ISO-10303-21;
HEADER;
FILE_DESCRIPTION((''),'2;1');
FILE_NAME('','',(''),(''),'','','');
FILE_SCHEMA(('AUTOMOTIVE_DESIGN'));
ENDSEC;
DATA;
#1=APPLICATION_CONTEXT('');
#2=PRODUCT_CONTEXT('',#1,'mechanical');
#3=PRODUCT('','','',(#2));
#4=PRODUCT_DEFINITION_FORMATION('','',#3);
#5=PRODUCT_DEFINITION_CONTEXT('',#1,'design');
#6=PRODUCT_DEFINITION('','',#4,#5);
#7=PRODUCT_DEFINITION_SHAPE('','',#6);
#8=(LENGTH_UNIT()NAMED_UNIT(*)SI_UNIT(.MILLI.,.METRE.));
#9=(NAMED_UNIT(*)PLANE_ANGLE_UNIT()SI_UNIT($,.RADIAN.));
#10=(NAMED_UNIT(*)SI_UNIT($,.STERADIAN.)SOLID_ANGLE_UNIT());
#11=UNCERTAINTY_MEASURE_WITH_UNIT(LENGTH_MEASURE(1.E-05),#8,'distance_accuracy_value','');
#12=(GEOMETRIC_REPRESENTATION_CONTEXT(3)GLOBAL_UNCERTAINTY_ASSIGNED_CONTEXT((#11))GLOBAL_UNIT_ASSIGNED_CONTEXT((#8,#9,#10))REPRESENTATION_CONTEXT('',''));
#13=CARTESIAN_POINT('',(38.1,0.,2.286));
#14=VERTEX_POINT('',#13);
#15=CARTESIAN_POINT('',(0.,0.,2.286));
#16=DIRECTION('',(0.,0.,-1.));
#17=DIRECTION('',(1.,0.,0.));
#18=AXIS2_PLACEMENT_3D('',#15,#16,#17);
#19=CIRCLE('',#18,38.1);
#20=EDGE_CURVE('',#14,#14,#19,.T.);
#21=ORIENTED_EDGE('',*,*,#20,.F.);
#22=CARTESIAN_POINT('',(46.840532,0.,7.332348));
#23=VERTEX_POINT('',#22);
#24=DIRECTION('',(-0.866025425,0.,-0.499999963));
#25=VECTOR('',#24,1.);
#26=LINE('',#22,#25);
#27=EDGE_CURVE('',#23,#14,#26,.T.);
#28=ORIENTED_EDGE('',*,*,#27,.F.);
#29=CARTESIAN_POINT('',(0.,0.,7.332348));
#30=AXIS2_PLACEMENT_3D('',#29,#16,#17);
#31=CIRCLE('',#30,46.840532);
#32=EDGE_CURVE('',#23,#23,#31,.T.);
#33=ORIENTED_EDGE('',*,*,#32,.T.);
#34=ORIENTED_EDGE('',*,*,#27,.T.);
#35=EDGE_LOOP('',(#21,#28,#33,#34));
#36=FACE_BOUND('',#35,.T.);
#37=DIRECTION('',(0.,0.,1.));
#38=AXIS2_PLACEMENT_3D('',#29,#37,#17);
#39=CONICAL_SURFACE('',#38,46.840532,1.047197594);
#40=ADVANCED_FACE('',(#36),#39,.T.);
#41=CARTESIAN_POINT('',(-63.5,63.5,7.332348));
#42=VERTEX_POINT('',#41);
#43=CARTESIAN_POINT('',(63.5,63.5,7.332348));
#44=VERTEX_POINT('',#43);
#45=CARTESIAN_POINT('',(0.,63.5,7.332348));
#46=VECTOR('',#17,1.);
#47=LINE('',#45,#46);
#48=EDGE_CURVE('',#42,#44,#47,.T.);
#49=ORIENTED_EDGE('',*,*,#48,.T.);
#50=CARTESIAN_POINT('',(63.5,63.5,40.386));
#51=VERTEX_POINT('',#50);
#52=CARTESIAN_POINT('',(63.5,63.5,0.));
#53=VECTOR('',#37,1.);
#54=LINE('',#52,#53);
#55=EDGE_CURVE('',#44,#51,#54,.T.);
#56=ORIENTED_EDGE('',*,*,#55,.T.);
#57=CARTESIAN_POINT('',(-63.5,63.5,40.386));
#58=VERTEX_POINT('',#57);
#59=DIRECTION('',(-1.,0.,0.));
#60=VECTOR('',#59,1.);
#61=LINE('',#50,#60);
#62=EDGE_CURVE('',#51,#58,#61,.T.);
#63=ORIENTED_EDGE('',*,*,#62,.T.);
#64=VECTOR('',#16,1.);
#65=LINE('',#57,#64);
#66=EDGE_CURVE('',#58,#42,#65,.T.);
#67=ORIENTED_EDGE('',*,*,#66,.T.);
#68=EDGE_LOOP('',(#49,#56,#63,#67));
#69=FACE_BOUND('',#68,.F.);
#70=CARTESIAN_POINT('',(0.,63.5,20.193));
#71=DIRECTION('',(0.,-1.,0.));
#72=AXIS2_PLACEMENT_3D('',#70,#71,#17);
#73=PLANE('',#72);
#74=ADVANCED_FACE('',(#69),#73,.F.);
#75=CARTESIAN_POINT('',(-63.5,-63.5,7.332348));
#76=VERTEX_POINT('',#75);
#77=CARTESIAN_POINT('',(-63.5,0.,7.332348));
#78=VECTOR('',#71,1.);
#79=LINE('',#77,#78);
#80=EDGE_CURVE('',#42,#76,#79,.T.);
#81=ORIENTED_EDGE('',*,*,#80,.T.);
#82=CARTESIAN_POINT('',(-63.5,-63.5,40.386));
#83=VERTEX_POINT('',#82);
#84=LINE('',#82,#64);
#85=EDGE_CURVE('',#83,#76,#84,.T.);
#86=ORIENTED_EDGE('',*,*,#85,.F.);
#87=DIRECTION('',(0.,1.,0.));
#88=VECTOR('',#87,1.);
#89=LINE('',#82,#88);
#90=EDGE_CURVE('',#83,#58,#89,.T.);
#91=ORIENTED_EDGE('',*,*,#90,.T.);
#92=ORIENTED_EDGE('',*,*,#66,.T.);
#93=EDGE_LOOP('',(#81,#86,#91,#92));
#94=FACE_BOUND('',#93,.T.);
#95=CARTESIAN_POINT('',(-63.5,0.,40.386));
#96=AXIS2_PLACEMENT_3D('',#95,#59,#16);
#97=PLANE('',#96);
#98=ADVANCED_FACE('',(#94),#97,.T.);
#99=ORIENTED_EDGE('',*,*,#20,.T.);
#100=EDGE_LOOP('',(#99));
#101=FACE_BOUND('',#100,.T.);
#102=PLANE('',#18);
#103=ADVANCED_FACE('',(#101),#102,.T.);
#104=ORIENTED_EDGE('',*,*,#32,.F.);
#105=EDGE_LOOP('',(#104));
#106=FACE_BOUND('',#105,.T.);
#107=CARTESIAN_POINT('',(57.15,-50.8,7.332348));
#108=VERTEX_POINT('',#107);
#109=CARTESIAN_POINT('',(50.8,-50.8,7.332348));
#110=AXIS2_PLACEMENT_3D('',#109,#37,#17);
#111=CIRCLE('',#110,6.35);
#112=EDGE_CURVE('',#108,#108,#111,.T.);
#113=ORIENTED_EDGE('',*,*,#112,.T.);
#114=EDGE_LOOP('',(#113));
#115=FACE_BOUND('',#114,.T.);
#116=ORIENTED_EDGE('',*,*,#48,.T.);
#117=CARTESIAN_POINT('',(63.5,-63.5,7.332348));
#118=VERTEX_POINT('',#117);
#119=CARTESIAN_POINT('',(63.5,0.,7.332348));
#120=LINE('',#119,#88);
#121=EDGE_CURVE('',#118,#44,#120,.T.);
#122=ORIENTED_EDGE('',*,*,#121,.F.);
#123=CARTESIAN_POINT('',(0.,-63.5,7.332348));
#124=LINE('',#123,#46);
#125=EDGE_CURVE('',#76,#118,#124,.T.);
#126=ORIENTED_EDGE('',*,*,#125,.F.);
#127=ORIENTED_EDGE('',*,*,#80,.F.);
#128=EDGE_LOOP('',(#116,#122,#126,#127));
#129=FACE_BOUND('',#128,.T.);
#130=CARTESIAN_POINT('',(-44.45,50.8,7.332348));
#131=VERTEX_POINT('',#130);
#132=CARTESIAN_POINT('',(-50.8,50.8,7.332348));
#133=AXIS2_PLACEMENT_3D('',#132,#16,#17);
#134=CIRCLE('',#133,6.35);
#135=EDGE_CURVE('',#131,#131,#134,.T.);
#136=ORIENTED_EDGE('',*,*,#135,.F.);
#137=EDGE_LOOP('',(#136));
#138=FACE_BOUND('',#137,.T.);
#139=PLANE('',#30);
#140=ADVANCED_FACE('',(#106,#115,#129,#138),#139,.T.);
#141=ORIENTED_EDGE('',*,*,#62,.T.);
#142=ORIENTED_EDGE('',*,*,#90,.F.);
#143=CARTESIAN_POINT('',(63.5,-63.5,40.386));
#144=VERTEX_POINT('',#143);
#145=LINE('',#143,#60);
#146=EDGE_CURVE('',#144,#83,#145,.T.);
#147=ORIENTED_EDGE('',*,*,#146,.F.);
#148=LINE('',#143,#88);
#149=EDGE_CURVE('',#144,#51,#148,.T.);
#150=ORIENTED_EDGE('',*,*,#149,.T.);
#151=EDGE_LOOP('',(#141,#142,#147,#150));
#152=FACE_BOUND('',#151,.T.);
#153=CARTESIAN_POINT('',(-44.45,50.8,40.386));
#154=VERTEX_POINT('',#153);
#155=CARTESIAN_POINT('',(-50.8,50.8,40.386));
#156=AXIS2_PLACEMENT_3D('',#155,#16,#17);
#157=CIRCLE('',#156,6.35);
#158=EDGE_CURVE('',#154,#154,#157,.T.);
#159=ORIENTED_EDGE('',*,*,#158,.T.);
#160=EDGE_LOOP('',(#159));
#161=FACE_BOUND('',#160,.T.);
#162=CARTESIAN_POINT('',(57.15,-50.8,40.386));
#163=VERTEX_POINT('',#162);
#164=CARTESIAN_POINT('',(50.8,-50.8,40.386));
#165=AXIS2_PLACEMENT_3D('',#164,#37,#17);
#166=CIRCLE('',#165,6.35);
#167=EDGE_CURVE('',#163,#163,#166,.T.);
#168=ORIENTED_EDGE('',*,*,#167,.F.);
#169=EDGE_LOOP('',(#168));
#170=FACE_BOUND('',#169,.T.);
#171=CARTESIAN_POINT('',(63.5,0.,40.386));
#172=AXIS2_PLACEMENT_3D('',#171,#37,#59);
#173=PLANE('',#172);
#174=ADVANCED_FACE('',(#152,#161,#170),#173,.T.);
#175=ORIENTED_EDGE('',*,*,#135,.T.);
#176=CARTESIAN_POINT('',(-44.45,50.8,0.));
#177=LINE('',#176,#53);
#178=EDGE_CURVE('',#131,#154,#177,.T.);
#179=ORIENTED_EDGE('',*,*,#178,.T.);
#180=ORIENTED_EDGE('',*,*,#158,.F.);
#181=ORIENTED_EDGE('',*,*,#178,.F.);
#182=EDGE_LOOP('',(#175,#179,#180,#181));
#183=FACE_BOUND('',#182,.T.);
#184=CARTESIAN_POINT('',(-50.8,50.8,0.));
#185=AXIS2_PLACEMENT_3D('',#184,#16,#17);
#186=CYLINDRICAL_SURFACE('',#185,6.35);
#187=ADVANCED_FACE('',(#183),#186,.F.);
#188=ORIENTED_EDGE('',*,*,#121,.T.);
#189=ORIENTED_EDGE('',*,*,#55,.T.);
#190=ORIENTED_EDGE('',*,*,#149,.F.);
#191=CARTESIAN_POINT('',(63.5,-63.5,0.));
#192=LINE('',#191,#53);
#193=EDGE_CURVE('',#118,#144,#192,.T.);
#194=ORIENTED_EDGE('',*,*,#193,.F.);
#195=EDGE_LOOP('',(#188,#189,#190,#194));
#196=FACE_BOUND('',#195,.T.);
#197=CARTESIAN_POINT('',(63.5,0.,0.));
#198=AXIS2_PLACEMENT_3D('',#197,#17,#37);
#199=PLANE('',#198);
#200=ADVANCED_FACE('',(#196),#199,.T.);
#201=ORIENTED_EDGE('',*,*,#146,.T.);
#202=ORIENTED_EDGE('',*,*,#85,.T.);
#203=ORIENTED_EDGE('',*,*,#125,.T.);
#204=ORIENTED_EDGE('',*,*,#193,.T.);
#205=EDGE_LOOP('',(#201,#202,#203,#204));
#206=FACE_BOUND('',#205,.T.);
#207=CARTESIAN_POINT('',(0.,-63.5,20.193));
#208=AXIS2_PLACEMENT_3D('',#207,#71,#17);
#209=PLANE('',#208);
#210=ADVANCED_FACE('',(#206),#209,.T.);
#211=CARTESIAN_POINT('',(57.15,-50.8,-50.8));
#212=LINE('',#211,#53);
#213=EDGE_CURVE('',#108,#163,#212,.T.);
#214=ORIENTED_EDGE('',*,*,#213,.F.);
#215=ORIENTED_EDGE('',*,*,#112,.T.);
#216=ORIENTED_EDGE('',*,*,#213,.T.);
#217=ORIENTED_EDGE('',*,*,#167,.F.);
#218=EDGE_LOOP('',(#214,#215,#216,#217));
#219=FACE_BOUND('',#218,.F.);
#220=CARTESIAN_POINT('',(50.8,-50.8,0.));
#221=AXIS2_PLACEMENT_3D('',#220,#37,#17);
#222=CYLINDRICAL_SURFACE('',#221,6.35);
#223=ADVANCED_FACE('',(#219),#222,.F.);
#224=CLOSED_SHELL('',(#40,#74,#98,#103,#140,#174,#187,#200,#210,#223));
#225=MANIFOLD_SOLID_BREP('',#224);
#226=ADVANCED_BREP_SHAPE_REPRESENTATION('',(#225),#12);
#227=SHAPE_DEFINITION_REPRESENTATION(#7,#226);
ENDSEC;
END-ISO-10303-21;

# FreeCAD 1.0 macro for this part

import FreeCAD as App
import Part
import Sketcher

V = App.Vector
Q = App.Units.Quantity

doc = App.newDocument("Part")
body = doc.addObject("PartDesign::Body", "Body")

# Sketch on XZ plane
sketch1 = body.newObject("Sketcher::SketchObject", "Sketch")
sketch1.AttachmentSupport = (doc.getObject("XZ_Plane"), [""])
sketch1.MapMode = "FlatFace"
sketch1.addGeometry([
    Part.LineSegment(V(-64, 40, 0), V(-64, 0, 0)),
    Part.LineSegment(V(-64, 0, 0), V(64, 0, 0)),
    Part.LineSegment(V(64, 0, 0), V(64, 40, 0)),
    Part.LineSegment(V(64, 40, 0), V(-64, 40, 0)),
], False)
sketch1.addConstraint([
    Sketcher.Constraint("Coincident", 0, 2, 1, 1),
    Sketcher.Constraint("Coincident", 1, 2, 2, 1),
    Sketcher.Constraint("Coincident", 2, 2, 3, 1),
    Sketcher.Constraint("Coincident", 3, 2, 0, 1),
    Sketcher.Constraint("Vertical", 0),
    Sketcher.Constraint("Horizontal", 1),
    Sketcher.Constraint("Vertical", 2),
    Sketcher.Constraint("Horizontal", 3),
    Sketcher.Constraint("Symmetric", 0, 2, 1, 2, -1, 1),
    Sketcher.Constraint("DistanceX", 1, 1, 1, 2, Q("5 in")),
    Sketcher.Constraint("DistanceY", 0, 2, 0, 1, Q("1.59 in")),
])
pad1 = body.newObject("PartDesign::Pad", "Pad")
pad1.Profile = sketch1
pad1.Length = Q("5 in")
pad1.Midplane = True

# Sketch on XZ plane
sketch2 = body.newObject("Sketcher::SketchObject", "Sketch001")
sketch2.AttachmentSupport = (doc.getObject("XZ_Plane"), [""])
sketch2.MapMode = "FlatFace"
sketch2.addGeometry([
    Part.LineSegment(V(0, 2.3, 0), V(0, 0, 0)),  # 0
    Part.LineSegment(V(0, 0, 0), V(91.4, 0, 0)),  # 1
    Part.LineSegment(V(91.4, 0, 0), V(91.4, 7.3, 0)),  # 2
    Part.LineSegment(V(91.4, 7.3, 0), V(46.8, 7.3, 0)),  # 3
    Part.LineSegment(V(46.8, 7.3, 0), V(38.1, 2.3, 0)),  # 4
    Part.LineSegment(V(38.1, 2.3, 0), V(0, 2.3, 0)),  # 5
], False)
sketch2.addConstraint([
    Sketcher.Constraint("Coincident", 0, 2, 1, 1),
    Sketcher.Constraint("Coincident", 1, 2, 2, 1),
    Sketcher.Constraint("Coincident", 2, 2, 3, 1),
    Sketcher.Constraint("Coincident", 3, 2, 4, 1),
    Sketcher.Constraint("Coincident", 4, 2, 5, 1),
    Sketcher.Constraint("Coincident", 5, 2, 0, 1),
    Sketcher.Constraint("Vertical", 0),
    Sketcher.Constraint("Horizontal", 1),
    Sketcher.Constraint("Vertical", 2),
    Sketcher.Constraint("Horizontal", 3),
    Sketcher.Constraint("Horizontal", 5),
    Sketcher.Constraint("Coincident", 0, 2, -1, 1),
    Sketcher.Constraint("DistanceX", 5, 2, 5, 1, Q("1.5 in")),
    Sketcher.Constraint("Angle", 4, Q("-150.000002 deg")),
    Sketcher.Constraint("DistanceY", 0, 2, 0, 1, Q("0.09 in")),
    Sketcher.Constraint("DistanceX", 1, 1, 1, 2, 91.416501),
    Sketcher.Constraint("DistanceX", 3, 2, 3, 1, 44.575969),
])
groove = body.newObject("PartDesign::Groove", "Groove")
groove.Profile = sketch2
groove.ReferenceAxis = (sketch2, ["V_Axis"])
groove.Angle = 360

# Sketch on XY plane
sketch3 = body.newObject("Sketcher::SketchObject", "Sketch002")
sketch3.AttachmentSupport = (doc.getObject("XY_Plane"), [""])
sketch3.MapMode = "FlatFace"
sketch3.addGeometry([
    Part.Circle(V(-51, 51, 0), V(0, 0, 1), 6),
    Part.Circle(V(51, -51, 0), V(0, 0, 1), 6),
], False)
sketch3.addConstraint([
    Sketcher.Constraint("Equal", 0, 1),
    Sketcher.Constraint("Symmetric", 0, 3, 1, 3, -1, 1),
    Sketcher.Constraint("Diameter", 0, Q("0.5 in")),
    Sketcher.Constraint("DistanceX", 0, 3, -1, 1, Q("2 in")),
    Sketcher.Constraint("DistanceY", -1, 1, 0, 3, Q("2 in")),
])
pocket1 = body.newObject("PartDesign::Pocket", "Pocket")
pocket1.Profile = sketch3
pocket1.Length = Q("4 in")
pocket1.Midplane = True

doc.recompute()
